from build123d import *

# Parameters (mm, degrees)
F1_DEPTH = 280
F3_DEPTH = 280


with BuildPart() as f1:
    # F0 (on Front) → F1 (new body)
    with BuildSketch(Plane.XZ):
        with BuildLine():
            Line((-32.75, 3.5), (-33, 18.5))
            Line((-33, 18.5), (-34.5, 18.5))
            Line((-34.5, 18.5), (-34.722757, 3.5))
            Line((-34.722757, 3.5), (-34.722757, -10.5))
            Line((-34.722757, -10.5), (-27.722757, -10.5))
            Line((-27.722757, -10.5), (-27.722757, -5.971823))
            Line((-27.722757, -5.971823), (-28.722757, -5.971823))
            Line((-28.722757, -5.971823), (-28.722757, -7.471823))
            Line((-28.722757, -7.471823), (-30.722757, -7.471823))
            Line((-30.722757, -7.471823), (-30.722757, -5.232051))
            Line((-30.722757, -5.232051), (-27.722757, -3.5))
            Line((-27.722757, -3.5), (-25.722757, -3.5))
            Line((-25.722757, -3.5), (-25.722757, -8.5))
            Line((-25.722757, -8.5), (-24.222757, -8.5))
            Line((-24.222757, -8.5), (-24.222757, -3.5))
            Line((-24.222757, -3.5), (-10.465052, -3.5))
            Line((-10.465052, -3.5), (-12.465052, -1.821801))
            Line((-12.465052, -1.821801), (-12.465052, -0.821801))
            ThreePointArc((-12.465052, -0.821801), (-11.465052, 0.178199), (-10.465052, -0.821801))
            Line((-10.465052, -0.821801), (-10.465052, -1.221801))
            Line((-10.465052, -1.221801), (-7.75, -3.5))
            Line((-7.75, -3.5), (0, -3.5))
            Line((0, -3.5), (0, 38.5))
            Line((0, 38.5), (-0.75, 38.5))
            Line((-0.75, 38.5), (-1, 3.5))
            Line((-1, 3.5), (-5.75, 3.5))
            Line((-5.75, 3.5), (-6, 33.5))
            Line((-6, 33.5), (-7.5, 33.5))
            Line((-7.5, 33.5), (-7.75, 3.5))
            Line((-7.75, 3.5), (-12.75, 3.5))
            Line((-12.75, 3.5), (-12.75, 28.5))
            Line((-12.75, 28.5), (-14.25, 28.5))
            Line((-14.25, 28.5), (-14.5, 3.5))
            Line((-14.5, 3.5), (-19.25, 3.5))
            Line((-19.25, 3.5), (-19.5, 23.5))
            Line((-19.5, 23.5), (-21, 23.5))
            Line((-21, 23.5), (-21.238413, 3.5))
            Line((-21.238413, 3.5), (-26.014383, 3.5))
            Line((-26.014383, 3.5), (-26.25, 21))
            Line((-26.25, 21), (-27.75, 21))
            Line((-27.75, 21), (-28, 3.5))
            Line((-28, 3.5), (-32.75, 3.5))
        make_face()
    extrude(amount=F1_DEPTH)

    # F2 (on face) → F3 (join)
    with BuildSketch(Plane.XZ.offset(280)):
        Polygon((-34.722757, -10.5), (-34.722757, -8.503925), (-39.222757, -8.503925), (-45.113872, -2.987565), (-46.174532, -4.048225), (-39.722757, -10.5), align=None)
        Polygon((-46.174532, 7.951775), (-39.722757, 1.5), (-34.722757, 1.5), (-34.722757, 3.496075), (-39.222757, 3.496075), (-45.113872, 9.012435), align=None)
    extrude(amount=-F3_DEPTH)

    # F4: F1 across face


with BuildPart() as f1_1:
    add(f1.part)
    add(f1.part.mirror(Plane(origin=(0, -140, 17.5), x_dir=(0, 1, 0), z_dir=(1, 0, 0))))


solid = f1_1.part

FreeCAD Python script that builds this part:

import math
import FreeCAD as App
import Part
import Sketcher
Q = App.Units.Quantity

doc = App.newDocument("Part")
body = doc.addObject("PartDesign::Body", "Body")

sketch1 = body.newObject("Sketcher::SketchObject", "Sketch")
sketch1.AttachmentSupport = (doc.getObject("XZ_Plane"), [""])
sketch1.MapMode = "FlatFace"
sketch1.addGeometry([
    Part.LineSegment(App.Vector(-32.75, 3.5, 0), App.Vector(-33, 18.5, 0)),
    Part.LineSegment(App.Vector(-33, 18.5, 0), App.Vector(-34.5, 18.5, 0)),
    Part.LineSegment(App.Vector(-34.5, 18.5, 0), App.Vector(-34.72, 3.5, 0)),
    Part.LineSegment(App.Vector(-34.72, 3.5, 0), App.Vector(-34.72, -10.5, 0)),
    Part.LineSegment(App.Vector(-34.72, -10.5, 0), App.Vector(-27.72, -10.5, 0)),
    Part.LineSegment(App.Vector(-27.72, -10.5, 0), App.Vector(-27.72, -5.97, 0)),
    Part.LineSegment(App.Vector(-27.72, -5.97, 0), App.Vector(-28.72, -5.97, 0)),
    Part.LineSegment(App.Vector(-28.72, -5.97, 0), App.Vector(-28.72, -7.47, 0)),
    Part.LineSegment(App.Vector(-28.72, -7.47, 0), App.Vector(-30.72, -7.47, 0)),
    Part.LineSegment(App.Vector(-30.72, -7.47, 0), App.Vector(-30.72, -5.23, 0)),
    Part.LineSegment(App.Vector(-30.72, -5.23, 0), App.Vector(-27.72, -3.5, 0)),
    Part.LineSegment(App.Vector(-27.72, -3.5, 0), App.Vector(-25.72, -3.5, 0)),
    Part.LineSegment(App.Vector(-25.72, -3.5, 0), App.Vector(-25.72, -8.5, 0)),
    Part.LineSegment(App.Vector(-25.72, -8.5, 0), App.Vector(-24.22, -8.5, 0)),
    Part.LineSegment(App.Vector(-24.22, -8.5, 0), App.Vector(-24.22, -3.5, 0)),
    Part.LineSegment(App.Vector(-24.22, -3.5, 0), App.Vector(-10.47, -3.5, 0)),
    Part.LineSegment(App.Vector(-10.47, -3.5, 0), App.Vector(-12.47, -1.82, 0)),
    Part.LineSegment(App.Vector(-12.47, -1.82, 0), App.Vector(-12.47, -0.82, 0)),
    Part.ArcOfCircle(Part.Circle(App.Vector(-11.47, -0.82, 0), App.Vector(0, 0, 1), 1), math.radians(0), math.radians(180)),
    Part.LineSegment(App.Vector(-10.47, -0.82, 0), App.Vector(-10.47, -1.22, 0)),
    Part.LineSegment(App.Vector(-10.47, -1.22, 0), App.Vector(-7.75, -3.5, 0)),
    Part.LineSegment(App.Vector(-7.75, -3.5, 0), App.Vector(0, -3.5, 0)),
    Part.LineSegment(App.Vector(0, -3.5, 0), App.Vector(0, 38.5, 0)),
    Part.LineSegment(App.Vector(0, 38.5, 0), App.Vector(-0.75, 38.5, 0)),
    Part.LineSegment(App.Vector(-0.75, 38.5, 0), App.Vector(-1, 3.5, 0)),
    Part.LineSegment(App.Vector(-1, 3.5, 0), App.Vector(-5.75, 3.5, 0)),
    Part.LineSegment(App.Vector(-5.75, 3.5, 0), App.Vector(-6, 33.5, 0)),
    Part.LineSegment(App.Vector(-6, 33.5, 0), App.Vector(-7.5, 33.5, 0)),
    Part.LineSegment(App.Vector(-7.5, 33.5, 0), App.Vector(-7.75, 3.5, 0)),
    Part.LineSegment(App.Vector(-7.75, 3.5, 0), App.Vector(-12.75, 3.5, 0)),
    Part.LineSegment(App.Vector(-12.75, 3.5, 0), App.Vector(-12.75, 28.5, 0)),
    Part.LineSegment(App.Vector(-12.75, 28.5, 0), App.Vector(-14.25, 28.5, 0)),
    Part.LineSegment(App.Vector(-14.25, 28.5, 0), App.Vector(-14.5, 3.5, 0)),
    Part.LineSegment(App.Vector(-14.5, 3.5, 0), App.Vector(-19.25, 3.5, 0)),
    Part.LineSegment(App.Vector(-19.25, 3.5, 0), App.Vector(-19.5, 23.5, 0)),
    Part.LineSegment(App.Vector(-19.5, 23.5, 0), App.Vector(-21, 23.5, 0)),
    Part.LineSegment(App.Vector(-21, 23.5, 0), App.Vector(-21.24, 3.5, 0)),
    Part.LineSegment(App.Vector(-21.24, 3.5, 0), App.Vector(-26.01, 3.5, 0)),
    Part.LineSegment(App.Vector(-26.01, 3.5, 0), App.Vector(-26.25, 21, 0)),
    Part.LineSegment(App.Vector(-26.25, 21, 0), App.Vector(-27.75, 21, 0)),
    Part.LineSegment(App.Vector(-27.75, 21, 0), App.Vector(-28, 3.5, 0)),
    Part.LineSegment(App.Vector(-28, 3.5, 0), App.Vector(-32.75, 3.5, 0)),
], False)
sketch1.addConstraint([
    Sketcher.Constraint("Coincident", 0, 2, 1, 1),
    Sketcher.Constraint("Coincident", 1, 2, 2, 1),
    Sketcher.Constraint("Coincident", 2, 2, 3, 1),
    Sketcher.Constraint("Coincident", 3, 2, 4, 1),
    Sketcher.Constraint("Coincident", 4, 2, 5, 1),
    Sketcher.Constraint("Coincident", 5, 2, 6, 1),
    Sketcher.Constraint("Coincident", 6, 2, 7, 1),
    Sketcher.Constraint("Coincident", 7, 2, 8, 1),
    Sketcher.Constraint("Coincident", 8, 2, 9, 1),
    Sketcher.Constraint("Coincident", 9, 2, 10, 1),
    Sketcher.Constraint("Coincident", 10, 2, 11, 1),
    Sketcher.Constraint("Coincident", 11, 2, 12, 1),
    Sketcher.Constraint("Coincident", 12, 2, 13, 1),
    Sketcher.Constraint("Coincident", 13, 2, 14, 1),
    Sketcher.Constraint("Coincident", 14, 2, 15, 1),
    Sketcher.Constraint("Coincident", 15, 2, 16, 1),
    Sketcher.Constraint("Coincident", 16, 2, 17, 1),
    Sketcher.Constraint("Tangent", 17, 2, 18, 2),
    Sketcher.Constraint("Tangent", 18, 1, 19, 1),
    Sketcher.Constraint("Coincident", 19, 2, 20, 1),
    Sketcher.Constraint("Coincident", 20, 2, 21, 1),
    Sketcher.Constraint("Coincident", 21, 2, 22, 1),
    Sketcher.Constraint("Coincident", 22, 2, 23, 1),
    Sketcher.Constraint("Coincident", 23, 2, 24, 1),
    Sketcher.Constraint("Coincident", 24, 2, 25, 1),
    Sketcher.Constraint("Coincident", 25, 2, 26, 1),
    Sketcher.Constraint("Coincident", 26, 2, 27, 1),
    Sketcher.Constraint("Coincident", 27, 2, 28, 1),
    Sketcher.Constraint("Coincident", 28, 2, 29, 1),
    Sketcher.Constraint("Coincident", 29, 2, 30, 1),
    Sketcher.Constraint("Coincident", 30, 2, 31, 1),
    Sketcher.Constraint("Coincident", 31, 2, 32, 1),
    Sketcher.Constraint("Coincident", 32, 2, 33, 1),
    Sketcher.Constraint("Coincident", 33, 2, 34, 1),
    Sketcher.Constraint("Coincident", 34, 2, 35, 1),
    Sketcher.Constraint("Coincident", 35, 2, 36, 1),
    Sketcher.Constraint("Coincident", 36, 2, 37, 1),
    Sketcher.Constraint("Coincident", 37, 2, 38, 1),
    Sketcher.Constraint("Coincident", 38, 2, 39, 1),
    Sketcher.Constraint("Coincident", 39, 2, 40, 1),
    Sketcher.Constraint("Coincident", 40, 2, 41, 1),
    Sketcher.Constraint("Coincident", 41, 2, 0, 1),
    Sketcher.Constraint("Horizontal", 1),
    Sketcher.Constraint("Vertical", 3),
    Sketcher.Constraint("Horizontal", 4),
    Sketcher.Constraint("Vertical", 5),
    Sketcher.Constraint("Horizontal", 6),
    Sketcher.Constraint("Vertical", 7),
    Sketcher.Constraint("Horizontal", 8),
    Sketcher.Constraint("Vertical", 9),
    Sketcher.Constraint("Horizontal", 11),
    Sketcher.Constraint("Vertical", 12),
    Sketcher.Constraint("Horizontal", 13),
    Sketcher.Constraint("Vertical", 14),
    Sketcher.Constraint("Horizontal", 15),
    Sketcher.Constraint("Vertical", 17),
    Sketcher.Constraint("Vertical", 19),
    Sketcher.Constraint("Horizontal", 21),
    Sketcher.Constraint("Vertical", 22),
    Sketcher.Constraint("Horizontal", 23),
    Sketcher.Constraint("Horizontal", 25),
    Sketcher.Constraint("Horizontal", 27),
    Sketcher.Constraint("Horizontal", 29),
    Sketcher.Constraint("Vertical", 30),
    Sketcher.Constraint("Horizontal", 31),
    Sketcher.Constraint("Horizontal", 33),
    Sketcher.Constraint("Horizontal", 35),
    Sketcher.Constraint("Horizontal", 37),
    Sketcher.Constraint("Horizontal", 39),
    Sketcher.Constraint("Horizontal", 41),
    Sketcher.Constraint("Symmetric", 20, 2, 28, 2, -1),
    Sketcher.Constraint("PointOnObject", 21, 2, -2),
    Sketcher.Constraint("Parallel", 16, 20),
    Sketcher.Constraint("Horizontal", 11, 2, 14, 2),
    Sketcher.Constraint("Horizontal", 15, 2, 20, 2),
    Sketcher.Constraint("Horizontal", 2, 2, 24, 2),
    Sketcher.Constraint("Horizontal", 25, 2, 28, 2),
    Sketcher.Constraint("Horizontal", 29, 2, 32, 2),
    Sketcher.Constraint("Horizontal", 33, 2, 36, 2),
    Sketcher.Constraint("Horizontal", 37, 2, 40, 2),
    Sketcher.Constraint("Vertical", 5, 2, 10, 2),
    Sketcher.Constraint("Vertical", 15, 2, 18, 1),
    Sketcher.Constraint("Equal", 8, 11),
    Sketcher.Constraint("Equal", 1, 13),
    Sketcher.Constraint("Equal", 13, 27),
    Sketcher.Constraint("Equal", 27, 31),
    Sketcher.Constraint("Equal", 25, 33),
    Sketcher.Constraint("Equal", 31, 35),
    Sketcher.Constraint("Equal", 35, 39),
    Sketcher.Constraint("Equal", 33, 41),
    Sketcher.Constraint("Equal", 39, 7),
    Sketcher.Constraint("Equal", 29, 12),
    Sketcher.Constraint("Equal", 6, 17),
    Sketcher.Constraint("Equal", 26, 28),
    Sketcher.Constraint("Radius", 18, Q("1 mm")),
    Sketcher.Constraint("DistanceX", 4, 1, 4, 2, Q("7 mm")),
    Sketcher.Constraint("DistanceX", 6, 2, 6, 1, Q("1 mm")),
    Sketcher.Constraint("DistanceX", 8, 2, 8, 1, Q("2 mm")),
    Sketcher.Constraint("DistanceX", 29, 2, 29, 1, Q("5 mm")),
    Sketcher.Constraint("DistanceY", 3, 2, 3, 1, Q("14 mm")),
    Sketcher.Constraint("DistanceY", 22, 1, 22, 2, Q("42 mm")),
    Sketcher.Constraint("DistanceY", 30, 1, 30, 2, Q("25 mm")),
    Sketcher.Constraint("Angle", 10, Q("30.000003 deg")),
    Sketcher.Constraint("Angle", 16, Q("140.000004 deg")),
    Sketcher.Constraint("DistanceX", 1, 2, 1, 1, Q("1.5 mm")),
    Sketcher.Constraint("DistanceY", 19, 2, 19, 1, Q("0.4 mm")),
    Sketcher.Constraint("DistanceX", 0, 2, -1, 1, Q("33 mm")),
    Sketcher.Constraint("DistanceX", 24, 2, -1, 1, Q("1 mm")),
    Sketcher.Constraint("DistanceX", 26, 2, -1, 1, Q("6 mm")),
    Sketcher.Constraint("DistanceX", 35, 2, -1, 1, Q("21 mm")),
    Sketcher.Constraint("DistanceY", -1, 1, 38, 2, Q("21 mm")),
    Sketcher.Constraint("DistanceX", 40, 2, -1, 1, Q("28 mm")),
    Sketcher.Constraint("DistanceY", 2, 2, 1, 2, Q("15 mm")),
    Sketcher.Constraint("DistanceY", 4, 2, 12, 2, Q("2 mm")),
    Sketcher.Constraint("DistanceX", 20, 2, 25, 2, Q("2 mm")),
    Sketcher.Constraint("DistanceY", 26, 2, 23, 2, Q("5 mm")),
    Sketcher.Constraint("DistanceX", 30, 2, 23, 2, Q("12 mm")),
    Sketcher.Constraint("DistanceY", 34, 2, 31, 2, Q("5 mm")),
    Sketcher.Constraint("DistanceX", 38, 2, 31, 2, Q("12 mm")),
    Sketcher.Constraint("DistanceX", 32, 2, -1, 1, Q("14.5 mm")),
    Sketcher.Constraint("DistanceX", 37, 2, 37, 1, Q("4.77597 mm")),
    Sketcher.Constraint("DistanceY", 9, 1, 9, 2, Q("2.239772 mm")),
    Sketcher.Constraint("Distance", 36, Q("20.001421 mm")),
    Sketcher.Constraint("DistanceX", 15, 1, 15, 2, Q("13.757705 mm")),
])
pad1 = body.newObject("PartDesign::Pad", "Pad")
pad1.Profile = sketch1
pad1.Length = 280

sketch2 = body.newObject("Sketcher::SketchObject", "Sketch001")
sketch2.AttachmentSupport = (doc.getObject("XZ_Plane"), [""])
sketch2.MapMode = "FlatFace"
sketch2.AttachmentOffset = App.Placement(App.Vector(0, 0, 280), App.Rotation())
sketch2.addGeometry([
    Part.LineSegment(App.Vector(-34.7, -10.5, 0), App.Vector(-34.7, -8.5, 0)),
    Part.LineSegment(App.Vector(-34.7, -8.5, 0), App.Vector(-39.2, -8.5, 0)),
    Part.LineSegment(App.Vector(-39.2, -8.5, 0), App.Vector(-45.1, -3, 0)),
    Part.LineSegment(App.Vector(-45.1, -3, 0), App.Vector(-46.2, -4, 0)),
    Part.LineSegment(App.Vector(-46.2, -4, 0), App.Vector(-39.7, -10.5, 0)),
    Part.LineSegment(App.Vector(-39.7, -10.5, 0), App.Vector(-34.7, -10.5, 0)),
    Part.LineSegment(App.Vector(-46.2, 8, 0), App.Vector(-39.7, 1.5, 0)),
    Part.LineSegment(App.Vector(-39.7, 1.5, 0), App.Vector(-34.7, 1.5, 0)),
    Part.LineSegment(App.Vector(-34.7, 1.5, 0), App.Vector(-34.7, 3.5, 0)),
    Part.LineSegment(App.Vector(-34.7, 3.5, 0), App.Vector(-39.2, 3.5, 0)),
    Part.LineSegment(App.Vector(-39.2, 3.5, 0), App.Vector(-45.1, 9, 0)),
    Part.LineSegment(App.Vector(-45.1, 9, 0), App.Vector(-46.2, 8, 0)),
], False)
sketch2.addConstraint([
    Sketcher.Constraint("Coincident", 0, 2, 1, 1),
    Sketcher.Constraint("Coincident", 1, 2, 2, 1),
    Sketcher.Constraint("Coincident", 2, 2, 3, 1),
    Sketcher.Constraint("Coincident", 3, 2, 4, 1),
    Sketcher.Constraint("Coincident", 4, 2, 5, 1),
    Sketcher.Constraint("Coincident", 5, 2, 0, 1),
    Sketcher.Constraint("Coincident", 6, 2, 7, 1),
    Sketcher.Constraint("Coincident", 7, 2, 8, 1),
    Sketcher.Constraint("Coincident", 8, 2, 9, 1),
    Sketcher.Constraint("Coincident", 9, 2, 10, 1),
    Sketcher.Constraint("Coincident", 10, 2, 11, 1),
    Sketcher.Constraint("Coincident", 11, 2, 6, 1),
    Sketcher.Constraint("Vertical", 0),
    Sketcher.Constraint("Horizontal", 1),
    Sketcher.Constraint("Horizontal", 5),
    Sketcher.Constraint("Horizontal", 7),
    Sketcher.Constraint("Vertical", 8),
    Sketcher.Constraint("Horizontal", 9),
    Sketcher.Constraint("Perpendicular", 3, 4),
    Sketcher.Constraint("Parallel", 4, 6),
    Sketcher.Constraint("Parallel", 2, 10),
    Sketcher.Constraint("Perpendicular", 6, 11),
    Sketcher.Constraint("Vertical", 4, 2, 6, 2),
    Sketcher.Constraint("Vertical", 5, 2, 7, 2),
    Sketcher.Constraint("Vertical", 1, 2, 9, 2),
    Sketcher.Constraint("Vertical", 2, 2, 10, 2),
    Sketcher.Constraint("Vertical", 3, 2, 11, 2),
    Sketcher.Constraint("DistanceX", 5, 1, 5, 2, Q("5 mm")),
    Sketcher.Constraint("Angle", 3, Q("-135 deg")),
    Sketcher.Constraint("DistanceX", 1, 2, 1, 1, Q("4.5 mm")),
    Sketcher.Constraint("DistanceY", 4, 2, 6, 2, Q("12 mm")),
    Sketcher.Constraint("Distance", 3, Q("1.5 mm")),
    Sketcher.Constraint("DistanceY", 4, 2, -1, 1, Q("10.5 mm")),
    Sketcher.Constraint("DistanceY", 1, 2, 3, 2, Q("4.4557 mm")),
    Sketcher.Constraint("DistanceY", 0, 1, 0, 2, Q("1.996075 mm")),
    Sketcher.Constraint("DistanceX", 0, 2, -1, 1, Q("34.722757 mm")),
])
pad2 = body.newObject("PartDesign::Pad", "Pad001")
pad2.Profile = sketch2
pad2.Length = 280
pad2.Reversed = True
body2 = doc.addObject("PartDesign::Body", "Body001")
doc.recompute()

body2.BaseFeature = body
doc.recompute()

mirroring = doc.addObject("Part::Mirroring", "Mirroring")
mirroring.Source = body
mirroring.Base = App.Vector(0, -140, 17.5)
mirroring.Normal = App.Vector(1, 0, 0)
body3 = doc.addObject("PartDesign::Body", "Body002")
body3.BaseFeature = mirroring
boolean = body2.newObject("PartDesign::Boolean", "Boolean")
boolean.Type = "Fuse"
boolean.addObjects([body3])
doc.recompute()
mirroring.Visibility = False

doc.recompute()
